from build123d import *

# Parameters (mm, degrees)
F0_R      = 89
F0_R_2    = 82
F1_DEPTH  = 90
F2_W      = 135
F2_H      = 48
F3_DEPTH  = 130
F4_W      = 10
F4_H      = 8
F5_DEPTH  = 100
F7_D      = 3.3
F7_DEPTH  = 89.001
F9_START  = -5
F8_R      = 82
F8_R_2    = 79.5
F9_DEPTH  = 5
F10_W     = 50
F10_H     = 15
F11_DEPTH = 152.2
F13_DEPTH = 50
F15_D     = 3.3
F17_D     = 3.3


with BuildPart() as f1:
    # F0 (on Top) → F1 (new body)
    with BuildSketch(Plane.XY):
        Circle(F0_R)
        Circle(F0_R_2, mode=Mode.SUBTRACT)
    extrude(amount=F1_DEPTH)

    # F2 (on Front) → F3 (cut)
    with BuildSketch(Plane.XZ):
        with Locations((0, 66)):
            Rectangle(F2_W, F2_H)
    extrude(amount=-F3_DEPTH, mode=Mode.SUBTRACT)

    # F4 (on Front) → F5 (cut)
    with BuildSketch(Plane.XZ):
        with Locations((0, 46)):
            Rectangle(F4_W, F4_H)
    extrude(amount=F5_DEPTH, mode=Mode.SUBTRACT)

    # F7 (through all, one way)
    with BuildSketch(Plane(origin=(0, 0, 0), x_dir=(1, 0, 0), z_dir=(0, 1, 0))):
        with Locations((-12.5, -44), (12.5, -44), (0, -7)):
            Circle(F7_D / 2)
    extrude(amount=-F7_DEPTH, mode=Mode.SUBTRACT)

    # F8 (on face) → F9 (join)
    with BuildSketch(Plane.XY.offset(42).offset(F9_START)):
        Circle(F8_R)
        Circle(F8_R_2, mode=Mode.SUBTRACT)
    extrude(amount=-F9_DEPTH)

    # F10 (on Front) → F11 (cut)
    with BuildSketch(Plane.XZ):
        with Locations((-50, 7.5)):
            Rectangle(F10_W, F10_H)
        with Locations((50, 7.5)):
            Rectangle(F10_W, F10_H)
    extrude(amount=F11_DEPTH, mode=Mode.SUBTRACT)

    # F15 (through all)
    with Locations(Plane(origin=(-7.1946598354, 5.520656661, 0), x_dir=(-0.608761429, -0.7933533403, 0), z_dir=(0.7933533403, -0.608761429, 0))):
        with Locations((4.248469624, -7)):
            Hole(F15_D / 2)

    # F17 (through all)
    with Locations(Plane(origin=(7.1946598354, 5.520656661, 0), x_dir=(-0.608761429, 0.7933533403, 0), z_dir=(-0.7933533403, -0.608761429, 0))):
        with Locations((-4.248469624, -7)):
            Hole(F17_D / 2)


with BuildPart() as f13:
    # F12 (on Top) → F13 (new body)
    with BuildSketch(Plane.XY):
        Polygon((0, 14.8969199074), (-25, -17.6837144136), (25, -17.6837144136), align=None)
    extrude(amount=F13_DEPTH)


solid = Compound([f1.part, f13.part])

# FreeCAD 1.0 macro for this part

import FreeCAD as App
import Part
import Sketcher
from FreeCAD import Vector
Q = App.Units.Quantity


def add_polygon(sketch, points):
    """Adds a closed chain of lines whose ends are joined by coincident constraints."""
    first, n = sketch.GeometryCount, len(points)
    for a, b in zip(points, points[1:] + points[:1]):
        sketch.addGeometry(Part.LineSegment(App.Vector(*a, 0), App.Vector(*b, 0)), False)
    for i in range(n):
        sketch.addConstraint(Sketcher.Constraint("Coincident", first + i, 2, first + (i + 1) % n, 1))

doc = App.newDocument("Part")
body = doc.addObject("PartDesign::Body", "Body")

# Sketch on XY plane
sketch1 = doc.addObject("Sketcher::SketchObject", "Sketch")
body.addObject(sketch1)
sketch1.AttachmentSupport = (doc.XY_Plane, [""])
sketch1.MapMode = "FlatFace"
sketch1.addGeometry([
    Part.Circle(Vector(0, 0, 0), Vector(0, 0, 1), 89),
    Part.Circle(Vector(0, 0, 0), Vector(0, 0, 1), 82),
], False)
sketch1.addConstraint([
    Sketcher.Constraint("Coincident", 0, 3, -1, 1),
    Sketcher.Constraint("Coincident", 1, 3, -1, 1),
    Sketcher.Constraint("Diameter", 0, Q("178 mm")),
    Sketcher.Constraint("Diameter", 1, Q("164 mm")),
])
pad1 = doc.addObject("PartDesign::Pad", "Pad")
body.addObject(pad1)
pad1.Profile = sketch1
pad1.Length = 90

# Sketch on XZ plane
sketch2 = doc.addObject("Sketcher::SketchObject", "Sketch001")
body.addObject(sketch2)
sketch2.AttachmentSupport = (doc.XZ_Plane, [""])
sketch2.MapMode = "FlatFace"
add_polygon(sketch2, [(-68, 90), (-68, 42), (68, 42), (68, 90)])  # lines 0-3
sketch2.addConstraint([
    Sketcher.Constraint("Vertical", 0),
    Sketcher.Constraint("Horizontal", 1),
    Sketcher.Constraint("Vertical", 2),
    Sketcher.Constraint("Horizontal", 3),
    Sketcher.Constraint("DistanceX", 1, 1, 1, 2, Q("135 mm")),
    Sketcher.Constraint("DistanceY", 0, 2, 0, 1, Q("48 mm")),
    Sketcher.Constraint("DistanceY", -1, 1, 0, 2, Q("42 mm")),
    Sketcher.Constraint("DistanceX", 0, 2, -1, 1, Q("67.5 mm")),
])
pocket1 = doc.addObject("PartDesign::Pocket", "Pocket")
body.addObject(pocket1)
pocket1.Profile = sketch2
pocket1.Length = 130

# Sketch on XZ plane
sketch3 = doc.addObject("Sketcher::SketchObject", "Sketch002")
body.addObject(sketch3)
sketch3.AttachmentSupport = (doc.XZ_Plane, [""])
sketch3.MapMode = "FlatFace"
add_polygon(sketch3, [(-5, 50), (-5, 42), (5, 42), (5, 50)])  # lines 0-3
sketch3.addConstraint([
    Sketcher.Constraint("Vertical", 0),
    Sketcher.Constraint("Horizontal", 1),
    Sketcher.Constraint("Vertical", 2),
    Sketcher.Constraint("Horizontal", 3),
    Sketcher.Constraint("DistanceX", 1, 1, 1, 2, Q("10 mm")),
    Sketcher.Constraint("DistanceY", 0, 2, 0, 1, Q("8 mm")),
    Sketcher.Constraint("DistanceX", 0, 2, -1, 1, Q("5 mm")),
    Sketcher.Constraint("DistanceY", -1, 1, 0, 2, Q("42 mm")),
])
pocket2 = doc.addObject("PartDesign::Pocket", "Pocket001")
body.addObject(pocket2)
pocket2.Profile = sketch3
pocket2.Length = 100
pocket2.Reversed = True

# Sketch on XZ plane
sketch4 = doc.addObject("Sketcher::SketchObject", "Sketch003")
body.addObject(sketch4)
sketch4.AttachmentSupport = (doc.XZ_Plane, [""])
sketch4.MapMode = "FlatFace"
sketch4.addGeometry([
    Part.Circle(Vector(0, 7, 0), Vector(0, 0, 1), 1.6),
    Part.Circle(Vector(-12.5, 44, 0), Vector(0, 0, 1), 1.6),
    Part.Circle(Vector(12.5, 44, 0), Vector(0, 0, 1), 1.6),
], False)
sketch4.addConstraint([
    Sketcher.Constraint("Equal", 0, 1),
    Sketcher.Constraint("Equal", 1, 2),
    Sketcher.Constraint("Symmetric", 1, 3, 2, 3, -2),
    Sketcher.Constraint("PointOnObject", 0, 3, -2),
    Sketcher.Constraint("Diameter", 0, Q("3.3 mm")),
    Sketcher.Constraint("DistanceY", -1, 1, 0, 3, Q("7 mm")),
    Sketcher.Constraint("DistanceY", -1, 1, 1, 3, Q("44 mm")),
    Sketcher.Constraint("DistanceX", 1, 3, 2, 3, Q("25 mm")),
])
pocket3 = doc.addObject("PartDesign::Pocket", "Pocket002")
body.addObject(pocket3)
pocket3.Profile = sketch4
pocket3.Type = "ThroughAll"
pocket3.Reversed = True

# Sketch on XY plane
sketch5 = doc.addObject("Sketcher::SketchObject", "Sketch004")
body.addObject(sketch5)
sketch5.AttachmentSupport = (doc.XY_Plane, [""])
sketch5.MapMode = "FlatFace"
sketch5.AttachmentOffset = App.Placement(Vector(0, 0, 37), App.Rotation())
sketch5.addGeometry([
    Part.Circle(Vector(0, 0, 0), Vector(0, 0, 1), 82),
    Part.Circle(Vector(0, 0, 0), Vector(0, 0, 1), 80),
], False)
sketch5.addConstraint([
    Sketcher.Constraint("Coincident", 0, 3, -1, 1),
    Sketcher.Constraint("Coincident", 1, 3, -1, 1),
    Sketcher.Constraint("Diameter", 0, Q("164 mm")),
    Sketcher.Constraint("Diameter", 1, Q("159 mm")),
])
pad2 = doc.addObject("PartDesign::Pad", "Pad001")
body.addObject(pad2)
pad2.Profile = sketch5
pad2.Length = 5
pad2.Reversed = True

# Sketch on XZ plane
sketch6 = doc.addObject("Sketcher::SketchObject", "Sketch005")
body.addObject(sketch6)
sketch6.AttachmentSupport = (doc.XZ_Plane, [""])
sketch6.MapMode = "FlatFace"
add_polygon(sketch6, [(-75, 15), (-75, 0), (-25, 0), (-25, 15)])  # lines 0-3
add_polygon(sketch6, [(25, 15), (25, 0), (75, 0), (75, 15)])  # lines 4-7
sketch6.addConstraint([
    Sketcher.Constraint("Vertical", 0),
    Sketcher.Constraint("Horizontal", 1),
    Sketcher.Constraint("Vertical", 2),
    Sketcher.Constraint("Horizontal", 3),
    Sketcher.Constraint("Vertical", 4),
    Sketcher.Constraint("Horizontal", 5),
    Sketcher.Constraint("Vertical", 6),
    Sketcher.Constraint("Horizontal", 7),
    Sketcher.Constraint("Symmetric", 1, 2, 4, 2, -1, 1),
    Sketcher.Constraint("Symmetric", 0, 2, 5, 2, -2),
    Sketcher.Constraint("Horizontal", 3, 2, 6, 2),
    Sketcher.Constraint("DistanceX", 1, 1, 1, 2, Q("50 mm")),
    Sketcher.Constraint("DistanceY", 0, 2, 0, 1, Q("15 mm")),
    Sketcher.Constraint("DistanceX", 0, 2, -1, 1, Q("75 mm")),
])
pocket4 = doc.addObject("PartDesign::Pocket", "Pocket003")
body.addObject(pocket4)
pocket4.Profile = sketch6
pocket4.Length = 152.2
pocket4.Reversed = True

# Sketch on an angled plane
sketch7 = doc.addObject("Sketcher::SketchObject", "Sketch006")
body.addObject(sketch7)
sketch7.Placement = App.Placement(Vector(-7.19466, 5.520657, 0), App.Rotation(Vector(-0.608761429, -0.79335334, 0), Vector(0, 0, -1), Vector(0.79335334, -0.608761429, 0), "ZXY"))
sketch7.addGeometry(Part.Circle(Vector(4.2, -7, 0), Vector(0, 0, 1), 1.6), False)
sketch7.addConstraint([
    Sketcher.Constraint("Diameter", 0, Q("3.3 mm")),
    Sketcher.Constraint("DistanceY", 0, 3, -1, 1, Q("7 mm")),
    Sketcher.Constraint("DistanceX", -1, 1, 0, 3, Q("4.24847 mm")),
])
doc.recompute()
hole = doc.addObject("PartDesign::Hole", "Hole")
body.addObject(hole)
hole.Profile = sketch7
hole.ThreadType = "None"
hole.Diameter = 3.3
hole.DepthType = "ThroughAll"

# Sketch on an angled plane
sketch8 = doc.addObject("Sketcher::SketchObject", "Sketch007")
body.addObject(sketch8)
sketch8.Placement = App.Placement(Vector(7.19466, 5.520657, 0), App.Rotation(Vector(-0.608761429, 0.79335334, 0), Vector(0, 0, -1), Vector(-0.79335334, -0.608761429, 0), "ZXY"))
sketch8.addGeometry(Part.Circle(Vector(-4.2, -7, 0), Vector(0, 0, 1), 1.6), False)
sketch8.addConstraint([
    Sketcher.Constraint("Diameter", 0, Q("3.3 mm")),
    Sketcher.Constraint("DistanceY", 0, 3, -1, 1, Q("7 mm")),
    Sketcher.Constraint("DistanceX", 0, 3, -1, 1, Q("4.24847 mm")),
])
doc.recompute()
hole2 = doc.addObject("PartDesign::Hole", "Hole001")
body.addObject(hole2)
hole2.Profile = sketch8
hole2.ThreadType = "None"
hole2.Diameter = 3.3
hole2.DepthType = "ThroughAll"
body2 = doc.addObject("PartDesign::Body", "Body001")

# Sketch on XY plane
sketch9 = doc.addObject("Sketcher::SketchObject", "Sketch008")
body2.addObject(sketch9)
sketch9.AttachmentSupport = (doc.getObject("XY_Plane001"), [""])
sketch9.MapMode = "FlatFace"
add_polygon(sketch9, [(0, 15), (-25, -18), (25, -18)])  # lines 0-2
sketch9.addConstraint([
    Sketcher.Constraint("Horizontal", 1),
    Sketcher.Constraint("PointOnObject", 2, 2, -2),
    Sketcher.Constraint("Equal", 0, 2),
    Sketcher.Constraint("DistanceX", 1, 1, 1, 2, Q("50 mm")),
    Sketcher.Constraint("Angle", 0, Q("-127.5 deg")),
    Sketcher.Constraint("DistanceY", -1, 1, 2, 2, Q("14.89692 mm")),
])
pad3 = doc.addObject("PartDesign::Pad", "Pad002")
body2.addObject(pad3)
pad3.Profile = sketch9
pad3.Length = 50

doc.recompute()
